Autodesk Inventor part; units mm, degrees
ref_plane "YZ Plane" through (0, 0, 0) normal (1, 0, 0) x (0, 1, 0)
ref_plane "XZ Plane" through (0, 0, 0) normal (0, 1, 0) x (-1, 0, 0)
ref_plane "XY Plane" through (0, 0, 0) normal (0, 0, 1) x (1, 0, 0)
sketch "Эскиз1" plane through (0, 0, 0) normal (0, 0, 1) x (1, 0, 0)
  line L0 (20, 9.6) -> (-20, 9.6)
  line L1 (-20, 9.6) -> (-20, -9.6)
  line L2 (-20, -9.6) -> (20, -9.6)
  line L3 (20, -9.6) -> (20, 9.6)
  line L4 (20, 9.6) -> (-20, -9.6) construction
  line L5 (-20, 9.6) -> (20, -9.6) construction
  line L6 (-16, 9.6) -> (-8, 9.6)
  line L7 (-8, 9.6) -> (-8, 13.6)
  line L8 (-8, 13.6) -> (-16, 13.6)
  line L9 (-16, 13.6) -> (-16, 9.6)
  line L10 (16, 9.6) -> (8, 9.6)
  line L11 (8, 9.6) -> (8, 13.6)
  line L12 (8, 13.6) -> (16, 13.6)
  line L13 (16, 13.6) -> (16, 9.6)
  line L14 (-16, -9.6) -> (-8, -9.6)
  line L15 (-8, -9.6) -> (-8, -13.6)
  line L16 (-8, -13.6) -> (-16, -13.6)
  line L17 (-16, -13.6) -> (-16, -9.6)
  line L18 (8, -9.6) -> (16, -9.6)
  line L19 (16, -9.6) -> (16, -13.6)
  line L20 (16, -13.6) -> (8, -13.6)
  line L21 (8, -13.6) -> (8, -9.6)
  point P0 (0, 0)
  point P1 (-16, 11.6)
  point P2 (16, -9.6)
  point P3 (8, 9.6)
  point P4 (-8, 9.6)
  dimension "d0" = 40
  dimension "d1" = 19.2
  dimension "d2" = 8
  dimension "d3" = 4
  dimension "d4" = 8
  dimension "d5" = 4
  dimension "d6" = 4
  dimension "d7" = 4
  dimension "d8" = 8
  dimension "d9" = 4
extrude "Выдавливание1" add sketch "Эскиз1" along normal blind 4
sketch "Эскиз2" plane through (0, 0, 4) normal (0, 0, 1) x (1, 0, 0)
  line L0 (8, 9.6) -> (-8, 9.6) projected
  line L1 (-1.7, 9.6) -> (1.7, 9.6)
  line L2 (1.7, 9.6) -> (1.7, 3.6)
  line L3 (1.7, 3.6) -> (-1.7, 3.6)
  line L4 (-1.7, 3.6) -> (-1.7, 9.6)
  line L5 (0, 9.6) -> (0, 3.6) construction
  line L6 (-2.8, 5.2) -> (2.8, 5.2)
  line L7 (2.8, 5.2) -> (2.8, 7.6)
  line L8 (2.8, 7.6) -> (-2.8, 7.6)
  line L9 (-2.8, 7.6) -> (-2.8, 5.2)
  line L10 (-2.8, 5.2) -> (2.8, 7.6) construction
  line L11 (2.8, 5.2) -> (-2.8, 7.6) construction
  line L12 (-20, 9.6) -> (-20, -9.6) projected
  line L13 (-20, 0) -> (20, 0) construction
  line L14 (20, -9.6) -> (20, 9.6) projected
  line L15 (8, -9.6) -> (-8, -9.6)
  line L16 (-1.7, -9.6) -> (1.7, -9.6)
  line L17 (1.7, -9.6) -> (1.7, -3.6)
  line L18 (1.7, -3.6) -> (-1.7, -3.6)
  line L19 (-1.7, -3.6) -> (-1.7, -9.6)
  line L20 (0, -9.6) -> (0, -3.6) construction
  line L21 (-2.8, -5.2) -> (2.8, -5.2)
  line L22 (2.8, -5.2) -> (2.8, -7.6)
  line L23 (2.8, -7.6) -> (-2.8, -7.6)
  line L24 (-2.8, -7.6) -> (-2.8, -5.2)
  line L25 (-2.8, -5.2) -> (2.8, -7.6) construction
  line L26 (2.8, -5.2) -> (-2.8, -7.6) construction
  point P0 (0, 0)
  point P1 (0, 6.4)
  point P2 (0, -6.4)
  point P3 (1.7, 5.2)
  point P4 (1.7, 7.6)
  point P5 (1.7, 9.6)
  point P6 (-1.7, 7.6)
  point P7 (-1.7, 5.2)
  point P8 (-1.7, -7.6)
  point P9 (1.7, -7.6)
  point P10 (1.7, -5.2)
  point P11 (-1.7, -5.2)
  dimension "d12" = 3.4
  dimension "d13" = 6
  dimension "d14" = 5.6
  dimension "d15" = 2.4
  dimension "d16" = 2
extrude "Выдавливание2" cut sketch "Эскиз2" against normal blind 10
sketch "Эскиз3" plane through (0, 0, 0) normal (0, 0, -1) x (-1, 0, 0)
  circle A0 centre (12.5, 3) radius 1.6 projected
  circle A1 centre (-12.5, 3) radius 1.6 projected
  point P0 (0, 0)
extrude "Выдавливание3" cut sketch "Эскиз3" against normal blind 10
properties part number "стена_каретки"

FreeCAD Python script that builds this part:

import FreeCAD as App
import Part
import Sketcher
Q = App.Units.Quantity

doc = App.newDocument("Part")
params = doc.addObject("Spreadsheet::Sheet", "Params")
for row, (alias, value) in enumerate([
    ("sketch1_width", "4 mm"),
    ("sketch1_width2", "8 mm"),
    ("sketch1_height", "19.2 mm"),
    ("pad1_length", "4 mm"),
    ("sketch2_height", "2 mm"),
    ("sketch2_width", "3.4 mm"),
    ("sketch2_height2", "2.4 mm"),
    ("sketch2_width2", "1.1 mm"),
    ("pocket1_length", "10 mm"),
    ("sketch3_diameter", "3.2 mm"),
    ("pocket2_length", "10 mm"),
], start=1):
    params.set(f"A{row}", alias)
    params.set(f"B{row}", "=" + value)
    params.setAlias(f"B{row}", alias)

body = doc.addObject("PartDesign::Body", "Body")

sketch1 = body.newObject("Sketcher::SketchObject", "Sketch")
sketch1.AttachmentSupport = (doc.getObject("XY_Plane"), [""])
sketch1.MapMode = "FlatFace"
sketch1.addGeometry(Part.LineSegment(App.Vector(20, -9.6, 0), App.Vector(20, 9.6, 0)), False)
sketch1.addGeometry(Part.LineSegment(App.Vector(20, 9.6, 0), App.Vector(16, 9.6, 0)), False)
sketch1.addGeometry(Part.LineSegment(App.Vector(16, 9.6, 0), App.Vector(16, 13.6, 0)), False)
sketch1.addGeometry(Part.LineSegment(App.Vector(16, 13.6, 0), App.Vector(8, 13.6, 0)), False)
sketch1.addGeometry(Part.LineSegment(App.Vector(8, 13.6, 0), App.Vector(8, 9.6, 0)), False)
sketch1.addGeometry(Part.LineSegment(App.Vector(8, 9.6, 0), App.Vector(-8, 9.6, 0)), False)
sketch1.addGeometry(Part.LineSegment(App.Vector(-8, 9.6, 0), App.Vector(-8, 13.6, 0)), False)
sketch1.addGeometry(Part.LineSegment(App.Vector(-8, 13.6, 0), App.Vector(-16, 13.6, 0)), False)
sketch1.addGeometry(Part.LineSegment(App.Vector(-16, 13.6, 0), App.Vector(-16, 9.6, 0)), False)
sketch1.addGeometry(Part.LineSegment(App.Vector(-16, 9.6, 0), App.Vector(-20, 9.6, 0)), False)
sketch1.addGeometry(Part.LineSegment(App.Vector(-20, 9.6, 0), App.Vector(-20, -9.6, 0)), False)
sketch1.addGeometry(Part.LineSegment(App.Vector(-20, -9.6, 0), App.Vector(-16, -9.6, 0)), False)
sketch1.addGeometry(Part.LineSegment(App.Vector(-16, -9.6, 0), App.Vector(-16, -13.6, 0)), False)
sketch1.addGeometry(Part.LineSegment(App.Vector(-16, -13.6, 0), App.Vector(-8, -13.6, 0)), False)
sketch1.addGeometry(Part.LineSegment(App.Vector(-8, -13.6, 0), App.Vector(-8, -9.6, 0)), False)
sketch1.addGeometry(Part.LineSegment(App.Vector(-8, -9.6, 0), App.Vector(8, -9.6, 0)), False)
sketch1.addGeometry(Part.LineSegment(App.Vector(8, -9.6, 0), App.Vector(8, -13.6, 0)), False)
sketch1.addGeometry(Part.LineSegment(App.Vector(8, -13.6, 0), App.Vector(16, -13.6, 0)), False)
sketch1.addGeometry(Part.LineSegment(App.Vector(16, -13.6, 0), App.Vector(16, -9.6, 0)), False)
sketch1.addGeometry(Part.LineSegment(App.Vector(16, -9.6, 0), App.Vector(20, -9.6, 0)), False)
sketch1.addConstraint(Sketcher.Constraint("Coincident", 0, 2, 1, 1))
sketch1.addConstraint(Sketcher.Constraint("Coincident", 1, 2, 2, 1))
sketch1.addConstraint(Sketcher.Constraint("Coincident", 2, 2, 3, 1))
sketch1.addConstraint(Sketcher.Constraint("Coincident", 3, 2, 4, 1))
sketch1.addConstraint(Sketcher.Constraint("Coincident", 4, 2, 5, 1))
sketch1.addConstraint(Sketcher.Constraint("Coincident", 5, 2, 6, 1))
sketch1.addConstraint(Sketcher.Constraint("Coincident", 6, 2, 7, 1))
sketch1.addConstraint(Sketcher.Constraint("Coincident", 7, 2, 8, 1))
sketch1.addConstraint(Sketcher.Constraint("Coincident", 8, 2, 9, 1))
sketch1.addConstraint(Sketcher.Constraint("Coincident", 9, 2, 10, 1))
sketch1.addConstraint(Sketcher.Constraint("Coincident", 10, 2, 11, 1))
sketch1.addConstraint(Sketcher.Constraint("Coincident", 11, 2, 12, 1))
sketch1.addConstraint(Sketcher.Constraint("Coincident", 12, 2, 13, 1))
sketch1.addConstraint(Sketcher.Constraint("Coincident", 13, 2, 14, 1))
sketch1.addConstraint(Sketcher.Constraint("Coincident", 14, 2, 15, 1))
sketch1.addConstraint(Sketcher.Constraint("Coincident", 15, 2, 16, 1))
sketch1.addConstraint(Sketcher.Constraint("Coincident", 16, 2, 17, 1))
sketch1.addConstraint(Sketcher.Constraint("Coincident", 17, 2, 18, 1))
sketch1.addConstraint(Sketcher.Constraint("Coincident", 18, 2, 19, 1))
sketch1.addConstraint(Sketcher.Constraint("Coincident", 19, 2, 0, 1))
sketch1.addConstraint(Sketcher.Constraint("Vertical", 0))
sketch1.addConstraint(Sketcher.Constraint("Horizontal", 1))
sketch1.addConstraint(Sketcher.Constraint("Vertical", 2))
sketch1.addConstraint(Sketcher.Constraint("Horizontal", 3))
sketch1.addConstraint(Sketcher.Constraint("Vertical", 4))
sketch1.addConstraint(Sketcher.Constraint("Horizontal", 5))
sketch1.addConstraint(Sketcher.Constraint("Vertical", 6))
sketch1.addConstraint(Sketcher.Constraint("Horizontal", 7))
sketch1.addConstraint(Sketcher.Constraint("Vertical", 8))
sketch1.addConstraint(Sketcher.Constraint("Horizontal", 9))
sketch1.addConstraint(Sketcher.Constraint("Vertical", 10))
sketch1.addConstraint(Sketcher.Constraint("Horizontal", 11))
sketch1.addConstraint(Sketcher.Constraint("Vertical", 12))
sketch1.addConstraint(Sketcher.Constraint("Horizontal", 13))
sketch1.addConstraint(Sketcher.Constraint("Vertical", 14))
sketch1.addConstraint(Sketcher.Constraint("Horizontal", 15))
sketch1.addConstraint(Sketcher.Constraint("Vertical", 16))
sketch1.addConstraint(Sketcher.Constraint("Horizontal", 17))
sketch1.addConstraint(Sketcher.Constraint("Vertical", 18))
sketch1.addConstraint(Sketcher.Constraint("Horizontal", 19))
sketch1.addConstraint(Sketcher.Constraint("Symmetric", 0, 2, 10, 2, -1, 1))
sketch1.addConstraint(Sketcher.Constraint("Symmetric", 2, 2, 12, 2, -1, 1))
sketch1.addConstraint(Sketcher.Constraint("Symmetric", 4, 2, 14, 2, -1, 1))
sketch1.addConstraint(Sketcher.Constraint("Symmetric", 6, 2, 16, 2, -1, 1))
sketch1.addConstraint(Sketcher.Constraint("Symmetric", 8, 2, 18, 2, -1, 1))
sketch1.addConstraint(Sketcher.Constraint("Symmetric", 3, 2, 6, 2, -2))
sketch1.addConstraint(Sketcher.Constraint("Symmetric", 1, 2, 8, 2, -2))
sketch1.addConstraint(Sketcher.Constraint("Horizontal", 1, 2, 4, 2))
sketch1.addConstraint(Sketcher.Constraint("Equal", 19, 2))
sketch1.addConstraint(Sketcher.Constraint("DistanceX", 1, 2, 1, 1, Q("4 mm")))
sketch1.addConstraint(Sketcher.Constraint("DistanceX", 3, 2, 3, 1, Q("8 mm")))
sketch1.addConstraint(Sketcher.Constraint("DistanceY", 0, 1, 0, 2, Q("19.2 mm")))
sketch1.addConstraint(Sketcher.Constraint("DistanceX", -1, 1, 3, 2, Q("8 mm")))
sketch1.setExpression("Constraints[49]", "Params.sketch1_width")
sketch1.setExpression("Constraints[50]", "Params.sketch1_width2")
sketch1.setExpression("Constraints[51]", "Params.sketch1_height")
pad1 = body.newObject("PartDesign::Pad", "Pad")
pad1.Profile = sketch1
pad1.setExpression("Length", "Params.pad1_length")

sketch2 = body.newObject("Sketcher::SketchObject", "Sketch001")
sketch2.AttachmentSupport = (doc.getObject("XY_Plane"), [""])
sketch2.MapMode = "FlatFace"
sketch2.AttachmentOffset = App.Placement(App.Vector(0, 0, 4), App.Rotation())
sketch2.addGeometry(Part.LineSegment(App.Vector(1.7, 7.6, 0), App.Vector(1.7, 9.6, 0)), False)
sketch2.addGeometry(Part.LineSegment(App.Vector(1.7, 9.6, 0), App.Vector(-1.7, 9.6, 0)), False)
sketch2.addGeometry(Part.LineSegment(App.Vector(-1.7, 9.6, 0), App.Vector(-1.7, 7.6, 0)), False)
sketch2.addGeometry(Part.LineSegment(App.Vector(-1.7, 7.6, 0), App.Vector(-2.8, 7.6, 0)), False)
sketch2.addGeometry(Part.LineSegment(App.Vector(-2.8, 7.6, 0), App.Vector(-2.8, 5.2, 0)), False)
sketch2.addGeometry(Part.LineSegment(App.Vector(-2.8, 5.2, 0), App.Vector(-1.7, 5.2, 0)), False)
sketch2.addGeometry(Part.LineSegment(App.Vector(-1.7, 5.2, 0), App.Vector(-1.7, 3.6, 0)), False)
sketch2.addGeometry(Part.LineSegment(App.Vector(-1.7, 3.6, 0), App.Vector(1.7, 3.6, 0)), False)
sketch2.addGeometry(Part.LineSegment(App.Vector(1.7, 3.6, 0), App.Vector(1.7, 5.2, 0)), False)
sketch2.addGeometry(Part.LineSegment(App.Vector(1.7, 5.2, 0), App.Vector(2.8, 5.2, 0)), False)
sketch2.addGeometry(Part.LineSegment(App.Vector(2.8, 5.2, 0), App.Vector(2.8, 7.6, 0)), False)
sketch2.addGeometry(Part.LineSegment(App.Vector(2.8, 7.6, 0), App.Vector(1.7, 7.6, 0)), False)
sketch2.addGeometry(Part.LineSegment(App.Vector(-1.7, -9.6, 0), App.Vector(1.7, -9.6, 0)), False)
sketch2.addGeometry(Part.LineSegment(App.Vector(1.7, -9.6, 0), App.Vector(1.7, -7.6, 0)), False)
sketch2.addGeometry(Part.LineSegment(App.Vector(1.7, -7.6, 0), App.Vector(2.8, -7.6, 0)), False)
sketch2.addGeometry(Part.LineSegment(App.Vector(2.8, -7.6, 0), App.Vector(2.8, -5.2, 0)), False)
sketch2.addGeometry(Part.LineSegment(App.Vector(2.8, -5.2, 0), App.Vector(1.7, -5.2, 0)), False)
sketch2.addGeometry(Part.LineSegment(App.Vector(1.7, -5.2, 0), App.Vector(1.7, -3.6, 0)), False)
sketch2.addGeometry(Part.LineSegment(App.Vector(1.7, -3.6, 0), App.Vector(-1.7, -3.6, 0)), False)
sketch2.addGeometry(Part.LineSegment(App.Vector(-1.7, -3.6, 0), App.Vector(-1.7, -5.2, 0)), False)
sketch2.addGeometry(Part.LineSegment(App.Vector(-1.7, -5.2, 0), App.Vector(-2.8, -5.2, 0)), False)
sketch2.addGeometry(Part.LineSegment(App.Vector(-2.8, -5.2, 0), App.Vector(-2.8, -7.6, 0)), False)
sketch2.addGeometry(Part.LineSegment(App.Vector(-2.8, -7.6, 0), App.Vector(-1.7, -7.6, 0)), False)
sketch2.addGeometry(Part.LineSegment(App.Vector(-1.7, -7.6, 0), App.Vector(-1.7, -9.6, 0)), False)
sketch2.addConstraint(Sketcher.Constraint("Coincident", 0, 2, 1, 1))
sketch2.addConstraint(Sketcher.Constraint("Coincident", 1, 2, 2, 1))
sketch2.addConstraint(Sketcher.Constraint("Coincident", 2, 2, 3, 1))
sketch2.addConstraint(Sketcher.Constraint("Coincident", 3, 2, 4, 1))
sketch2.addConstraint(Sketcher.Constraint("Coincident", 4, 2, 5, 1))
sketch2.addConstraint(Sketcher.Constraint("Coincident", 5, 2, 6, 1))
sketch2.addConstraint(Sketcher.Constraint("Coincident", 6, 2, 7, 1))
sketch2.addConstraint(Sketcher.Constraint("Coincident", 7, 2, 8, 1))
sketch2.addConstraint(Sketcher.Constraint("Coincident", 8, 2, 9, 1))
sketch2.addConstraint(Sketcher.Constraint("Coincident", 9, 2, 10, 1))
sketch2.addConstraint(Sketcher.Constraint("Coincident", 10, 2, 11, 1))
sketch2.addConstraint(Sketcher.Constraint("Coincident", 11, 2, 0, 1))
sketch2.addConstraint(Sketcher.Constraint("Coincident", 12, 2, 13, 1))
sketch2.addConstraint(Sketcher.Constraint("Coincident", 13, 2, 14, 1))
sketch2.addConstraint(Sketcher.Constraint("Coincident", 14, 2, 15, 1))
sketch2.addConstraint(Sketcher.Constraint("Coincident", 15, 2, 16, 1))
sketch2.addConstraint(Sketcher.Constraint("Coincident", 16, 2, 17, 1))
sketch2.addConstraint(Sketcher.Constraint("Coincident", 17, 2, 18, 1))
sketch2.addConstraint(Sketcher.Constraint("Coincident", 18, 2, 19, 1))
sketch2.addConstraint(Sketcher.Constraint("Coincident", 19, 2, 20, 1))
sketch2.addConstraint(Sketcher.Constraint("Coincident", 20, 2, 21, 1))
sketch2.addConstraint(Sketcher.Constraint("Coincident", 21, 2, 22, 1))
sketch2.addConstraint(Sketcher.Constraint("Coincident", 22, 2, 23, 1))
sketch2.addConstraint(Sketcher.Constraint("Coincident", 23, 2, 12, 1))
sketch2.addConstraint(Sketcher.Constraint("Vertical", 0))
sketch2.addConstraint(Sketcher.Constraint("Horizontal", 1))
sketch2.addConstraint(Sketcher.Constraint("Vertical", 2))
sketch2.addConstraint(Sketcher.Constraint("Horizontal", 3))
sketch2.addConstraint(Sketcher.Constraint("Vertical", 4))
sketch2.addConstraint(Sketcher.Constraint("Horizontal", 5))
sketch2.addConstraint(Sketcher.Constraint("Vertical", 6))
sketch2.addConstraint(Sketcher.Constraint("Horizontal", 7))
sketch2.addConstraint(Sketcher.Constraint("Vertical", 8))
sketch2.addConstraint(Sketcher.Constraint("Horizontal", 9))
sketch2.addConstraint(Sketcher.Constraint("Vertical", 10))
sketch2.addConstraint(Sketcher.Constraint("Horizontal", 11))
sketch2.addConstraint(Sketcher.Constraint("Horizontal", 12))
sketch2.addConstraint(Sketcher.Constraint("Vertical", 13))
sketch2.addConstraint(Sketcher.Constraint("Horizontal", 14))
sketch2.addConstraint(Sketcher.Constraint("Vertical", 15))
sketch2.addConstraint(Sketcher.Constraint("Horizontal", 16))
sketch2.addConstraint(Sketcher.Constraint("Vertical", 17))
sketch2.addConstraint(Sketcher.Constraint("Horizontal", 18))
sketch2.addConstraint(Sketcher.Constraint("Vertical", 19))
sketch2.addConstraint(Sketcher.Constraint("Horizontal", 20))
sketch2.addConstraint(Sketcher.Constraint("Vertical", 21))
sketch2.addConstraint(Sketcher.Constraint("Horizontal", 22))
sketch2.addConstraint(Sketcher.Constraint("Vertical", 23))
sketch2.addConstraint(Sketcher.Constraint("Symmetric", 1, 2, 12, 2, -1, 1))
sketch2.addConstraint(Sketcher.Constraint("Symmetric", 3, 2, 14, 2, -1, 1))
sketch2.addConstraint(Sketcher.Constraint("Symmetric", 5, 2, 16, 2, -1, 1))
sketch2.addConstraint(Sketcher.Constraint("Symmetric", 7, 2, 18, 2, -1, 1))
sketch2.addConstraint(Sketcher.Constraint("Symmetric", 9, 2, 20, 2, -1, 1))
sketch2.addConstraint(Sketcher.Constraint("Symmetric", 11, 2, 22, 2, -1, 1))
sketch2.addConstraint(Sketcher.Constraint("Symmetric", 5, 2, 8, 2, -2))
sketch2.addConstraint(Sketcher.Constraint("Symmetric", 3, 2, 10, 2, -2))
sketch2.addConstraint(Sketcher.Constraint("Vertical", 2, 2, 5, 2))
sketch2.addConstraint(Sketcher.Constraint("Vertical", 0, 2, 7, 2))
sketch2.addConstraint(Sketcher.Constraint("DistanceY", 0, 1, 0, 2, Q("2 mm")))
sketch2.addConstraint(Sketcher.Constraint("DistanceX", 1, 2, 1, 1, Q("3.4 mm")))
sketch2.addConstraint(Sketcher.Constraint("DistanceY", 4, 2, 4, 1, Q("2.4 mm")))
sketch2.addConstraint(Sketcher.Constraint("DistanceY", 6, 2, 1, 2, Q("6 mm")))
sketch2.addConstraint(Sketcher.Constraint("DistanceX", 3, 2, 3, 1, Q("1.1 mm")))
sketch2.addConstraint(Sketcher.Constraint("DistanceY", -1, 1, 0, 2, Q("9.6 mm")))
sketch2.setExpression("Constraints[58]", "Params.sketch2_height")
sketch2.setExpression("Constraints[59]", "Params.sketch2_width")
sketch2.setExpression("Constraints[60]", "Params.sketch2_height2")
sketch2.setExpression("Constraints[62]", "Params.sketch2_width2")
pocket1 = body.newObject("PartDesign::Pocket", "Pocket")
pocket1.Profile = sketch2
pocket1.setExpression("Length", "Params.pocket1_length")

sketch3 = body.newObject("Sketcher::SketchObject", "Sketch002")
sketch3.AttachmentSupport = (doc.getObject("XY_Plane"), [""])
sketch3.MapMode = "FlatFace"
sketch3.addGeometry(Part.Circle(App.Vector(-12.5, 3, 0), App.Vector(0, 0, 1), 1.6), False)
sketch3.addGeometry(Part.Circle(App.Vector(12.5, 3, 0), App.Vector(0, 0, 1), 1.6), False)
sketch3.addConstraint(Sketcher.Constraint("Equal", 0, 1))
sketch3.addConstraint(Sketcher.Constraint("Symmetric", 0, 3, 1, 3, -2))
sketch3.addConstraint(Sketcher.Constraint("Diameter", 0, Q("3.2 mm")))
sketch3.addConstraint(Sketcher.Constraint("DistanceY", -1, 1, 0, 3, Q("3 mm")))
sketch3.addConstraint(Sketcher.Constraint("DistanceX", 0, 3, 1, 3, Q("25 mm")))
sketch3.setExpression("Constraints[2]", "Params.sketch3_diameter")
pocket2 = body.newObject("PartDesign::Pocket", "Pocket001")
pocket2.Profile = sketch3
pocket2.setExpression("Length", "Params.pocket2_length")
pocket2.Reversed = True

doc.recompute()
